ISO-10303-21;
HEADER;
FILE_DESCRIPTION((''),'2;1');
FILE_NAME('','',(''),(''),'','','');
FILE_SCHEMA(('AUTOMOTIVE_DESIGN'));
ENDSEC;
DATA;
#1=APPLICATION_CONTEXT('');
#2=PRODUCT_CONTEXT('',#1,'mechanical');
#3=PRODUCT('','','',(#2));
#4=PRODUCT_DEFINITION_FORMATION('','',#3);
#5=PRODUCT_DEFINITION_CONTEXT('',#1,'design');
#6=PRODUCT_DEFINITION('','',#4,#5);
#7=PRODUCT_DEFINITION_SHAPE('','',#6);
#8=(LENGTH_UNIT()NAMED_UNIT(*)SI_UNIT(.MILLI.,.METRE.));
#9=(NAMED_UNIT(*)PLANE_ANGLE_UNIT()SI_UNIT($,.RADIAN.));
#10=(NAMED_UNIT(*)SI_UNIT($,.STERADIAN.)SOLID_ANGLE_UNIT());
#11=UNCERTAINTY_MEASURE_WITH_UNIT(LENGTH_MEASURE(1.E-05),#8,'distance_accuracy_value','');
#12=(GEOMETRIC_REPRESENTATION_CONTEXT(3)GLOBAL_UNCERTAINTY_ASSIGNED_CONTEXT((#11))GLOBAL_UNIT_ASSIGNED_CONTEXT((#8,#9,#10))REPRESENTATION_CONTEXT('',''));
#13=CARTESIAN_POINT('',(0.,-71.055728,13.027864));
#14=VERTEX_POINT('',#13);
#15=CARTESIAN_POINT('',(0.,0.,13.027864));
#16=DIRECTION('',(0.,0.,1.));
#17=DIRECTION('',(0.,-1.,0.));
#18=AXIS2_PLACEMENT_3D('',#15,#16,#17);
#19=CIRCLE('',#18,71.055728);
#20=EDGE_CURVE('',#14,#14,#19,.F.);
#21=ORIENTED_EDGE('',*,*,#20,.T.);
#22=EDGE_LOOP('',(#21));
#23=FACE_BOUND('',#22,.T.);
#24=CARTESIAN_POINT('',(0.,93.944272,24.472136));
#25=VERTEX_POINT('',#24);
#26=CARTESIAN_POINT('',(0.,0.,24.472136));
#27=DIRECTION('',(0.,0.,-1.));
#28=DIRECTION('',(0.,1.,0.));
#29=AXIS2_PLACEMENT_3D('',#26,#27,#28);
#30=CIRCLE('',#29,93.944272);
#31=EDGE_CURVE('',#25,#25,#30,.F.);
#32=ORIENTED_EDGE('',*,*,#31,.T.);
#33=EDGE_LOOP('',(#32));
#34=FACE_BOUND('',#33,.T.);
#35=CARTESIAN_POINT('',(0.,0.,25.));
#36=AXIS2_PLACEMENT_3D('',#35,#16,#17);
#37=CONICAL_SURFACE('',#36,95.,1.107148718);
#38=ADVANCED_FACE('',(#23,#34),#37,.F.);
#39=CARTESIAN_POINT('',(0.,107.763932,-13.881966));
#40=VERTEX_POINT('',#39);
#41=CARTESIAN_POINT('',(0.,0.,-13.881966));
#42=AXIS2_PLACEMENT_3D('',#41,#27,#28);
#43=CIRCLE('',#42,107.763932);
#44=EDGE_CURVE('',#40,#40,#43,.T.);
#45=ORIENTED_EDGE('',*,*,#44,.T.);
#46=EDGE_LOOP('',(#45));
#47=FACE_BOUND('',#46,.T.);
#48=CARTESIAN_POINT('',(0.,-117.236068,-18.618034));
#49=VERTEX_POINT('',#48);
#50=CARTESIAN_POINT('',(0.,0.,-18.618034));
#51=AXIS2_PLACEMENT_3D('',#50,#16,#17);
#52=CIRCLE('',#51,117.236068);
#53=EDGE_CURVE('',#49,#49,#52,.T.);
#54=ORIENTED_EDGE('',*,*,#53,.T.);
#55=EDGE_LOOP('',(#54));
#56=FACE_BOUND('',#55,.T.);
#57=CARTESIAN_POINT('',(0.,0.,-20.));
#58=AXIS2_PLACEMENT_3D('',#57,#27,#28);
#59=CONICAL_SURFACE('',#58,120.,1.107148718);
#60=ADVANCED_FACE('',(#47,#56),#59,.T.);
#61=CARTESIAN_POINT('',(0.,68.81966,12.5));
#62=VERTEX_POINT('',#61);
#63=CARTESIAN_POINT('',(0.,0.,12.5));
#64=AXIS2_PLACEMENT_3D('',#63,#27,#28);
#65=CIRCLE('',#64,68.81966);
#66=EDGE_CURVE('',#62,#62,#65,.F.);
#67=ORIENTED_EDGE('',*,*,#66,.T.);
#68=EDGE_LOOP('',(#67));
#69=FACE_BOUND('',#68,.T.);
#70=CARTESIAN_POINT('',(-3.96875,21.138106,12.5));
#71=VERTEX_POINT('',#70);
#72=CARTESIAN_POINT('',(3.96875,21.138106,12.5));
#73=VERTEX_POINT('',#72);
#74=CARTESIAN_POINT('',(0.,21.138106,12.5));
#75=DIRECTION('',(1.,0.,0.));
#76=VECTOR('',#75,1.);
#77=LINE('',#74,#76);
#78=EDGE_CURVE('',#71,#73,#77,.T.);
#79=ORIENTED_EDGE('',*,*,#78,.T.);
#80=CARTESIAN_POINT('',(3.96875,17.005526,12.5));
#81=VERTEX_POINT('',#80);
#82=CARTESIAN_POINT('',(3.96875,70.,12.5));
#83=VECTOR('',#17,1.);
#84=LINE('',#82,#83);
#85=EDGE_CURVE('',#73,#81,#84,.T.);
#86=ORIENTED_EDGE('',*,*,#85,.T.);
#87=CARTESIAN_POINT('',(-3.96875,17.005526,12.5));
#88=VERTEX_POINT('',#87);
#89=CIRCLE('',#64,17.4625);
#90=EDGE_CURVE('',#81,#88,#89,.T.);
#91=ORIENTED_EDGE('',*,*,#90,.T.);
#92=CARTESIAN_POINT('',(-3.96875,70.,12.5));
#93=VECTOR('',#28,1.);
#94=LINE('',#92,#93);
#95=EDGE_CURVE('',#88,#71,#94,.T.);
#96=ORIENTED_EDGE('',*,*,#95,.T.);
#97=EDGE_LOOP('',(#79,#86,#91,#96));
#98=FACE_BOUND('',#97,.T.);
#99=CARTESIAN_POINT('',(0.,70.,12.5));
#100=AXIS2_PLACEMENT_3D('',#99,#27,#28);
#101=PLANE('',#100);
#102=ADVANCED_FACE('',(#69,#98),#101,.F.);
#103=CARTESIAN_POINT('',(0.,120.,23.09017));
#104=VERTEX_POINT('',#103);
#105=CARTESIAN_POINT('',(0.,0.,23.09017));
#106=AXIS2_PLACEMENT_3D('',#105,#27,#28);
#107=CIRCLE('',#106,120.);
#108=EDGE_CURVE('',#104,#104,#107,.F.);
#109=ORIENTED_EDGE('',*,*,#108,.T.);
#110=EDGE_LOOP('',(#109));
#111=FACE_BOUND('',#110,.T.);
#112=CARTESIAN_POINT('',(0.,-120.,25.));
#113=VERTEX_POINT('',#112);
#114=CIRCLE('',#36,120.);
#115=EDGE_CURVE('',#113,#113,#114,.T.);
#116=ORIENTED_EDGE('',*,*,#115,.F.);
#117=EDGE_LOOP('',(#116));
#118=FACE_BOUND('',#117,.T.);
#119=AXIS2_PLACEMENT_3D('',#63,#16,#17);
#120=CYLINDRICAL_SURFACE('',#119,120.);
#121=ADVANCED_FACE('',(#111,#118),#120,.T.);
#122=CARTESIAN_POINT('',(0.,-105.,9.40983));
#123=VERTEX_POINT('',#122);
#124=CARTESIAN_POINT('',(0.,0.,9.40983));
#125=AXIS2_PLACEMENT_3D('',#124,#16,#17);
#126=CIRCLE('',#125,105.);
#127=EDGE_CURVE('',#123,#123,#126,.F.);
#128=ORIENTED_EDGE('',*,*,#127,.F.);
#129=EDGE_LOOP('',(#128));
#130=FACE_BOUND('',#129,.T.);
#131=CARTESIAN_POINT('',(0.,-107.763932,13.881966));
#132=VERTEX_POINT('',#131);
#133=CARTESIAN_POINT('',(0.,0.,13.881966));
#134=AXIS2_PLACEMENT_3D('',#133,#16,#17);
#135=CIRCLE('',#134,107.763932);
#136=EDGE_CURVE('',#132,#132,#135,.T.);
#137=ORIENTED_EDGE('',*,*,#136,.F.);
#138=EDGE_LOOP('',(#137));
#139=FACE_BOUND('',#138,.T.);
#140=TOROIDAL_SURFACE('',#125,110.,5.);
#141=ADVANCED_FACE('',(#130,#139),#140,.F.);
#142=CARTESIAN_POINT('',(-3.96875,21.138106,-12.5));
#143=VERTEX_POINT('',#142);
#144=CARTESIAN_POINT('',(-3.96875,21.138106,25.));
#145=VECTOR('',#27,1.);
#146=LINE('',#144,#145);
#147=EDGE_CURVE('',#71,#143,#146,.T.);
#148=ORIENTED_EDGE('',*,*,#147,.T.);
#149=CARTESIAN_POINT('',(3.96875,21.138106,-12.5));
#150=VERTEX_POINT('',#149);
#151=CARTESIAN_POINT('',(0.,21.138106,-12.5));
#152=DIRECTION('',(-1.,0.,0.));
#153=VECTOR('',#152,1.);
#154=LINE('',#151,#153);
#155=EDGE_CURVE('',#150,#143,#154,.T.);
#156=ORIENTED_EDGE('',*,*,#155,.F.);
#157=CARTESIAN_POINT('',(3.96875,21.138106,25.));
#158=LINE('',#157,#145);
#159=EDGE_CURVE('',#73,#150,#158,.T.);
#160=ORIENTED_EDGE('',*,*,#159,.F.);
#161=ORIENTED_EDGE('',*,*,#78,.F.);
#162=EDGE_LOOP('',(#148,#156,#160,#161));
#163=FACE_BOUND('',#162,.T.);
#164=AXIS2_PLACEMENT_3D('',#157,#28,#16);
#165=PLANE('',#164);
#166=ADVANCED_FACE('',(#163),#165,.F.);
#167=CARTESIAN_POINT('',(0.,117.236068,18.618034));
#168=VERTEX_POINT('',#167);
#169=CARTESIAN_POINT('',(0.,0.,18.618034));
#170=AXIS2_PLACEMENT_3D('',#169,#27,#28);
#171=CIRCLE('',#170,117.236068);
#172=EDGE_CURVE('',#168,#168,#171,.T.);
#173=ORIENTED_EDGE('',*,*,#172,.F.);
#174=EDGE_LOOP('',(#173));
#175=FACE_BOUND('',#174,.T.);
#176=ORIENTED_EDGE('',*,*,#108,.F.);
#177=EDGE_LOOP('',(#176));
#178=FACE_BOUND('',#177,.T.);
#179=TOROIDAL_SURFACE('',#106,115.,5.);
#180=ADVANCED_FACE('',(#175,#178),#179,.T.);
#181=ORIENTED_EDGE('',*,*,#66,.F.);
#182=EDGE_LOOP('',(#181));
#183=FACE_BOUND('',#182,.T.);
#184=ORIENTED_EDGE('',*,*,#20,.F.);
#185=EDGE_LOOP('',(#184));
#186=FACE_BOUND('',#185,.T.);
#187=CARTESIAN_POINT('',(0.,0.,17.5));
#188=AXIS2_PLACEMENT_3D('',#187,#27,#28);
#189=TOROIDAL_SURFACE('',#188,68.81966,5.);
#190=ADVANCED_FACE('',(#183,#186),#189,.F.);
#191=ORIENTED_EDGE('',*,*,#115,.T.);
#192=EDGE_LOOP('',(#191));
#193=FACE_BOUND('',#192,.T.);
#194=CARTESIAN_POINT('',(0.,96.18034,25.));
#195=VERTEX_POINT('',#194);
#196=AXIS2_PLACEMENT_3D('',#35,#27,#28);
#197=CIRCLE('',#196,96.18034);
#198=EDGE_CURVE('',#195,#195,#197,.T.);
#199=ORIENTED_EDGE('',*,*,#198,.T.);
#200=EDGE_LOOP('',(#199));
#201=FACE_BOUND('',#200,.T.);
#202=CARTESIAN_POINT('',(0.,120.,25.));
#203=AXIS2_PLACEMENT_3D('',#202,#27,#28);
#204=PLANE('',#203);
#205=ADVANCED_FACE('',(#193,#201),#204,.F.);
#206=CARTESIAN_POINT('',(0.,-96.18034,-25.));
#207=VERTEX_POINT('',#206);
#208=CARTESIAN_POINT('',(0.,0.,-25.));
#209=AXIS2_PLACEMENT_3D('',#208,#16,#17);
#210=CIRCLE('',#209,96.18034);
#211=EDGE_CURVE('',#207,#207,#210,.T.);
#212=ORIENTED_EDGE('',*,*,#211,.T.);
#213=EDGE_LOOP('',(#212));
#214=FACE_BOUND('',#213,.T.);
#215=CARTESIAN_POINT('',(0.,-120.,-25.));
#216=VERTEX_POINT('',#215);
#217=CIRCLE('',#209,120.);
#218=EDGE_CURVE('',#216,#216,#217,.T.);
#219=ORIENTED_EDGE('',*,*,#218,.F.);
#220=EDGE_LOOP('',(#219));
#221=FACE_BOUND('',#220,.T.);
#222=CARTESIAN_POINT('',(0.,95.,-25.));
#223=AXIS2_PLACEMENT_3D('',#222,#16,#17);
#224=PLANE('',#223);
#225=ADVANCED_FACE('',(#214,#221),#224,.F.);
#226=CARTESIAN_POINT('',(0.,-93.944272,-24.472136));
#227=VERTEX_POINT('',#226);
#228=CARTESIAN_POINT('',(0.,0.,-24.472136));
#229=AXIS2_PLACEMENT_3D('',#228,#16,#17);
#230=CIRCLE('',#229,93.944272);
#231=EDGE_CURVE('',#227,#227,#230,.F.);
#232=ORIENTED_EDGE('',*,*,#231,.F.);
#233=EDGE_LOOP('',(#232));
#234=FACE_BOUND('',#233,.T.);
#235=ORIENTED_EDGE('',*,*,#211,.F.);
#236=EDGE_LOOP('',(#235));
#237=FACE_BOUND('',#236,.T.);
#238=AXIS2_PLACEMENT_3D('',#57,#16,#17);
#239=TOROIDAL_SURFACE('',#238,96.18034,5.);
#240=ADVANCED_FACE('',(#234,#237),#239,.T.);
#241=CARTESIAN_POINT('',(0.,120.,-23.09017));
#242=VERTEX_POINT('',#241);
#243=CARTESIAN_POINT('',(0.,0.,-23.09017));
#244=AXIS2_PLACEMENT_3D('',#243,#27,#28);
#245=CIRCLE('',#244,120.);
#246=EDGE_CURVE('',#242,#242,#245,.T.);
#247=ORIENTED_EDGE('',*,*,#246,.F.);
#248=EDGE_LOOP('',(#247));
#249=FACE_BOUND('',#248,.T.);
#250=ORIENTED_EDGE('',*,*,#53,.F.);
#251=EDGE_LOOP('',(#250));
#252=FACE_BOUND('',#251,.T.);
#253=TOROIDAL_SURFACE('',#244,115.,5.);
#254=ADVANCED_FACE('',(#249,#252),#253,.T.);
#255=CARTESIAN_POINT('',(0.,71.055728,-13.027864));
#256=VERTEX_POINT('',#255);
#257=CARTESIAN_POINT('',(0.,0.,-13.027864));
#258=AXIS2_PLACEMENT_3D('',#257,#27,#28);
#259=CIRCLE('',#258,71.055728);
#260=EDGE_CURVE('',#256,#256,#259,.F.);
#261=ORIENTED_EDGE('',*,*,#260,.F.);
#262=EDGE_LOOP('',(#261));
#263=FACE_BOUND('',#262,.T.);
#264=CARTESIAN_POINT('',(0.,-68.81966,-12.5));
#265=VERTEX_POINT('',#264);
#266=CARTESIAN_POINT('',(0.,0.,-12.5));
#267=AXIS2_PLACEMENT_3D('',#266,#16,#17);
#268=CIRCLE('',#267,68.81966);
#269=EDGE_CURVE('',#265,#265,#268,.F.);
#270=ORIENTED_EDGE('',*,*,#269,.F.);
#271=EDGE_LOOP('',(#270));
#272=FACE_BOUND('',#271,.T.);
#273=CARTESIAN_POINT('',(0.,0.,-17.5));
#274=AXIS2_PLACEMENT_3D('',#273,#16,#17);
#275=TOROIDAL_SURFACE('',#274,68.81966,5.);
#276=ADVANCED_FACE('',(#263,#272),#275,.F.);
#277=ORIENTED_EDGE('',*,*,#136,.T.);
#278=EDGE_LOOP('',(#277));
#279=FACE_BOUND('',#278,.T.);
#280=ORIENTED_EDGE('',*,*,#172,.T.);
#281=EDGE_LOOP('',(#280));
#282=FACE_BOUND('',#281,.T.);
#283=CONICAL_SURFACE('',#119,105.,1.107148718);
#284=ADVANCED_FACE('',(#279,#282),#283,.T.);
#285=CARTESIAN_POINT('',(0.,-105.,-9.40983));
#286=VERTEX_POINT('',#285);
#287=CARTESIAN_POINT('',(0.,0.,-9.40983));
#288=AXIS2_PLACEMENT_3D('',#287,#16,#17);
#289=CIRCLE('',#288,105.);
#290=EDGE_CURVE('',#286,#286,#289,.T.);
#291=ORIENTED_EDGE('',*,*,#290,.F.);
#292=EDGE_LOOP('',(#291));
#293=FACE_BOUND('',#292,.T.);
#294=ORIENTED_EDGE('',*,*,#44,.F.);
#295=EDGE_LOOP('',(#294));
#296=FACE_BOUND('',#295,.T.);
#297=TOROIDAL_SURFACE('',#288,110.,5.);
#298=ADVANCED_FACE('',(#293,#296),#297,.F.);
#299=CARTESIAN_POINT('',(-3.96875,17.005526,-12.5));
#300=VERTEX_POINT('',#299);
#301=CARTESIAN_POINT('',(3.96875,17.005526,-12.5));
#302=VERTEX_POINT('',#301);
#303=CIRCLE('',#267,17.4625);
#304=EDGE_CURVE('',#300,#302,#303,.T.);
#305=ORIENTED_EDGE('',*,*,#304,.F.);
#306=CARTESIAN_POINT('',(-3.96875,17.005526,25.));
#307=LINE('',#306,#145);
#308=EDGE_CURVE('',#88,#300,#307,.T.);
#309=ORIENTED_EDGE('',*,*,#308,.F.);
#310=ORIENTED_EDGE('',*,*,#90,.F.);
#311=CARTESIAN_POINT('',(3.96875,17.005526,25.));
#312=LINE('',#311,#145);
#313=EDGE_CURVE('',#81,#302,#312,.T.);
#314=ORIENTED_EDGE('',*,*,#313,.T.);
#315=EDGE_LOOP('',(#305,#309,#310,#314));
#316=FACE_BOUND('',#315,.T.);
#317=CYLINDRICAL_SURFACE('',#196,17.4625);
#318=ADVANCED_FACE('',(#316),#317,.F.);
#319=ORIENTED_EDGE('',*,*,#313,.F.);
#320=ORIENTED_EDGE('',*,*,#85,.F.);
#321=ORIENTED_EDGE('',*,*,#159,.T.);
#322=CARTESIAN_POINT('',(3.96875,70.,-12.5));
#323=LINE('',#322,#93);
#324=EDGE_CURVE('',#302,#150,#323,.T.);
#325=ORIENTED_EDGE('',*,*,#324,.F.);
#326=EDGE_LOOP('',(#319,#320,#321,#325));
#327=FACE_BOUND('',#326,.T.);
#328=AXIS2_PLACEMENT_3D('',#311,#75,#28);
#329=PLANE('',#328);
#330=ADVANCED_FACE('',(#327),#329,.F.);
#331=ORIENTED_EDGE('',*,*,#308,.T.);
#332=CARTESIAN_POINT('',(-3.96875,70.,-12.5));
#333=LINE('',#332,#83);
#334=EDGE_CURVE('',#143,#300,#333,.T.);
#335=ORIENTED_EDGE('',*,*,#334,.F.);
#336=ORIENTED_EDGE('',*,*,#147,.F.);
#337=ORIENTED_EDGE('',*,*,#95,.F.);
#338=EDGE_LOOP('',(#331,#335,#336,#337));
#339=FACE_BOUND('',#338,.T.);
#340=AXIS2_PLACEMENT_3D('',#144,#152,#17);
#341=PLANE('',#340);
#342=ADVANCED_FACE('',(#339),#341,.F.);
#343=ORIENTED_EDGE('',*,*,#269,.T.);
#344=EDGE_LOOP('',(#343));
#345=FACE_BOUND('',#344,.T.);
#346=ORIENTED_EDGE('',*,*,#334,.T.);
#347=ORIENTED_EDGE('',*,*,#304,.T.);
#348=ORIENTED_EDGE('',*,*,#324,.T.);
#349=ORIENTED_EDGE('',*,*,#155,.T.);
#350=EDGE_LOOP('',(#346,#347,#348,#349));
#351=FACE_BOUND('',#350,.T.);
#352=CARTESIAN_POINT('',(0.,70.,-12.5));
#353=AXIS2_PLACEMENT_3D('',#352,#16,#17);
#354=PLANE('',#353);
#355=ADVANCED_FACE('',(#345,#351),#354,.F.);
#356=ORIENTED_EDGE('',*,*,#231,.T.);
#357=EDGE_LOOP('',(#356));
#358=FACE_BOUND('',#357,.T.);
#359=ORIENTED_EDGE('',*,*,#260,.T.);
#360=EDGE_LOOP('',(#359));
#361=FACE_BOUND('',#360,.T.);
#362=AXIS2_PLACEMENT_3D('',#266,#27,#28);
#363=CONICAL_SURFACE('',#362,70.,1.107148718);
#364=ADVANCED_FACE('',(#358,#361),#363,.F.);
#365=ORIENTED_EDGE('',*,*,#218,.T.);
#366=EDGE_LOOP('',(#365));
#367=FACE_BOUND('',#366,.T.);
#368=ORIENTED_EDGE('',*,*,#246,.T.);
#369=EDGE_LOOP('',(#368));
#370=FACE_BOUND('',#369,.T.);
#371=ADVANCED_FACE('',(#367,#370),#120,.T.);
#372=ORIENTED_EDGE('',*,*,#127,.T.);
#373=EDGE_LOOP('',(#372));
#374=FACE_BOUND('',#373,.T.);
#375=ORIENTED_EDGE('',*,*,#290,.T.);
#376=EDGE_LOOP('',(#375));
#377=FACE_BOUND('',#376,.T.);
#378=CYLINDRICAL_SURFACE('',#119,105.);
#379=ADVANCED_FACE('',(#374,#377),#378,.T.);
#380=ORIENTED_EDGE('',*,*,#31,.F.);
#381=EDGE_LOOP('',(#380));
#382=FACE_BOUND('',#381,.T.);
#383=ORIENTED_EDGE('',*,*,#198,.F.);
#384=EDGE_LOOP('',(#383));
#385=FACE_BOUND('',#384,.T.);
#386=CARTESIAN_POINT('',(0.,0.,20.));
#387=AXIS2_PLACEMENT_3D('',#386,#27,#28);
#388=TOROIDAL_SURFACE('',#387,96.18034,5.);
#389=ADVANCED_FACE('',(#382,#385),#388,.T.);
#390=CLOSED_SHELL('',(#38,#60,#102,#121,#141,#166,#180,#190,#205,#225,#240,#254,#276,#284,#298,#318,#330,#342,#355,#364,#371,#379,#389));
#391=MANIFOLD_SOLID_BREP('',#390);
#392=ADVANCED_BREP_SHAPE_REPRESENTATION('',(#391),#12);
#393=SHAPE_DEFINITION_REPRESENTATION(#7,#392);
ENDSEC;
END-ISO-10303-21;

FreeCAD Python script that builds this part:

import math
import FreeCAD as App
import Part
import Sketcher


def edges_at(feature, points):
    """Names of the edges that pass closest to the given points."""
    edges = feature.Shape.Edges
    near = lambda p: min(range(len(edges)), key=lambda i: edges[i].distToShape(Part.Vertex(*p))[0])
    return sorted({f"Edge{near(p) + 1}" for p in points})

doc = App.newDocument("Part")
params = doc.addObject("Spreadsheet::Sheet", "Params")
for row, (alias, value) in enumerate([
    ("sketch1_width", "25 mm"),
    ("sketch1_width2", "70 mm"),
    ("sketch1_height", "5 mm"),
    ("revolution_angle", "360 deg"),
    ("fillet_radius", "5 mm"),
], start=1):
    params.set(f"A{row}", alias)
    params.set(f"B{row}", "=" + value)
    params.setAlias(f"B{row}", alias)

body = doc.addObject("PartDesign::Body", "Body")

sketch1 = body.newObject("Sketcher::SketchObject", "Sketch")
sketch1.AttachmentSupport = (doc.getObject("YZ_Plane"), [""])
sketch1.MapMode = "FlatFace"
sketch1.addGeometry([
    Part.LineSegment(App.Vector(120, 25, 0), App.Vector(95, 25, 0)),
    Part.LineSegment(App.Vector(95, 25, 0), App.Vector(70, 12, 0)),
    Part.LineSegment(App.Vector(70, 12, 0), App.Vector(0, 12, 0)),
    Part.LineSegment(App.Vector(0, 12, 0), App.Vector(0, -12, 0)),
    Part.LineSegment(App.Vector(0, -12, 0), App.Vector(70, -12, 0)),
    Part.LineSegment(App.Vector(70, -12, 0), App.Vector(95, -25, 0)),
    Part.LineSegment(App.Vector(95, -25, 0), App.Vector(120, -25, 0)),
    Part.LineSegment(App.Vector(120, -25, 0), App.Vector(120, -20, 0)),
    Part.LineSegment(App.Vector(120, -20, 0), App.Vector(105, -12, 0)),
    Part.LineSegment(App.Vector(105, -12, 0), App.Vector(105, 12, 0)),
    Part.LineSegment(App.Vector(105, 12, 0), App.Vector(120, 20, 0)),
    Part.LineSegment(App.Vector(120, 20, 0), App.Vector(120, 25, 0)),
], False)
sketch1.addConstraint([
    Sketcher.Constraint("Coincident", 0, 2, 1, 1),
    Sketcher.Constraint("Coincident", 1, 2, 2, 1),
    Sketcher.Constraint("Coincident", 2, 2, 3, 1),
    Sketcher.Constraint("Coincident", 3, 2, 4, 1),
    Sketcher.Constraint("Coincident", 4, 2, 5, 1),
    Sketcher.Constraint("Coincident", 5, 2, 6, 1),
    Sketcher.Constraint("Coincident", 6, 2, 7, 1),
    Sketcher.Constraint("Coincident", 7, 2, 8, 1),
    Sketcher.Constraint("Coincident", 8, 2, 9, 1),
    Sketcher.Constraint("Coincident", 9, 2, 10, 1),
    Sketcher.Constraint("Coincident", 10, 2, 11, 1),
    Sketcher.Constraint("Coincident", 11, 2, 0, 1),
    Sketcher.Constraint("Horizontal", 0),
    Sketcher.Constraint("Horizontal", 2),
    Sketcher.Constraint("Vertical", 3),
    Sketcher.Constraint("Horizontal", 4),
    Sketcher.Constraint("Horizontal", 6),
    Sketcher.Constraint("Vertical", 7),
    Sketcher.Constraint("Vertical", 9),
    Sketcher.Constraint("Vertical", 11),
    Sketcher.Constraint("Symmetric", 2, 2, 3, 2, -1, 1),
    Sketcher.Constraint("Symmetric", 0, 2, 5, 2, -1),
    Sketcher.Constraint("Symmetric", 7, 2, 10, 2, -1),
    Sketcher.Constraint("Parallel", 5, 8),
    Sketcher.Constraint("Parallel", 1, 10),
    Sketcher.Constraint("Horizontal", 4, 2, 8, 2),
    Sketcher.Constraint("Horizontal", 2, 2, 9, 2),
    Sketcher.Constraint("Equal", 6, 3),
    Sketcher.Constraint("DistanceX", 0, 2, 0, 1, 25.0),
    Sketcher.Constraint("DistanceX", 2, 2, 2, 1, 70.0),
    Sketcher.Constraint("DistanceY", 7, 1, 7, 2, 5.0),
    Sketcher.Constraint("DistanceX", -1, 1, 0, 2, 95.0),
    Sketcher.Constraint("DistanceY", -1, 1, 0, 2, 25.0),
])
sketch1.setExpression("Constraints[28]", "Params.sketch1_width")
sketch1.setExpression("Constraints[29]", "Params.sketch1_width2")
sketch1.setExpression("Constraints[30]", "Params.sketch1_height")
revolution = body.newObject("PartDesign::Revolution", "Revolution")
revolution.Profile = sketch1
revolution.ReferenceAxis = (sketch1, ["V_Axis"])
revolution.setExpression("Angle", "Params.revolution_angle")
doc.recompute()

fillet = body.newObject("PartDesign::Fillet", "Fillet")
fillet.Base = (revolution, edges_at(revolution, [
    (0, 105, -12.5),
    (0, 120, -20),
    (0, 95, -25),
    (0, 70, -12.5),
    (0, 70, 12.5),
    (0, 95, 25),
    (0, 120, 20),
    (0, 105, 12.5),
]))
fillet.setExpression("Radius", "Params.fillet_radius")

sketch2 = body.newObject("Sketcher::SketchObject", "Sketch001")
sketch2.AttachmentSupport = (doc.getObject("XY_Plane"), [""])
sketch2.MapMode = "FlatFace"
sketch2.AttachmentOffset = App.Placement(App.Vector(0, 0, -12.5), App.Rotation())
sketch2.addGeometry([
    Part.LineSegment(App.Vector(4, 21.1, 0), App.Vector(4, 17, 0)),
    Part.ArcOfCircle(Part.Circle(App.Vector(0, 0, 0), App.Vector(0, 0, 1), 17.5), math.radians(103), math.radians(437)),
    Part.LineSegment(App.Vector(-4, 17, 0), App.Vector(-4, 21.1, 0)),
    Part.LineSegment(App.Vector(-4, 21.1, 0), App.Vector(4, 21.1, 0)),
], False)
sketch2.addConstraint([
    Sketcher.Constraint("Coincident", 0, 2, 1, 2),
    Sketcher.Constraint("Coincident", 1, 1, 2, 1),
    Sketcher.Constraint("Coincident", 2, 2, 3, 1),
    Sketcher.Constraint("Coincident", 3, 2, 0, 1),
    Sketcher.Constraint("Vertical", 0),
    Sketcher.Constraint("Vertical", 2),
    Sketcher.Constraint("Horizontal", 3),
    Sketcher.Constraint("Coincident", 1, 3, -1, 1),
    Sketcher.Constraint("Horizontal", 0, 2, 1, 1),
    Sketcher.Constraint("Radius", 1, 17.4625),
    Sketcher.Constraint("DistanceX", 3, 1, 3, 2, 7.9375),
    Sketcher.Constraint("DistanceY", 0, 2, 0, 1, 4.13258),
])
pocket1 = body.newObject("PartDesign::Pocket", "Pocket")
pocket1.Profile = sketch2
pocket1.Type = "ThroughAll"
pocket1.Midplane = True

doc.recompute()
